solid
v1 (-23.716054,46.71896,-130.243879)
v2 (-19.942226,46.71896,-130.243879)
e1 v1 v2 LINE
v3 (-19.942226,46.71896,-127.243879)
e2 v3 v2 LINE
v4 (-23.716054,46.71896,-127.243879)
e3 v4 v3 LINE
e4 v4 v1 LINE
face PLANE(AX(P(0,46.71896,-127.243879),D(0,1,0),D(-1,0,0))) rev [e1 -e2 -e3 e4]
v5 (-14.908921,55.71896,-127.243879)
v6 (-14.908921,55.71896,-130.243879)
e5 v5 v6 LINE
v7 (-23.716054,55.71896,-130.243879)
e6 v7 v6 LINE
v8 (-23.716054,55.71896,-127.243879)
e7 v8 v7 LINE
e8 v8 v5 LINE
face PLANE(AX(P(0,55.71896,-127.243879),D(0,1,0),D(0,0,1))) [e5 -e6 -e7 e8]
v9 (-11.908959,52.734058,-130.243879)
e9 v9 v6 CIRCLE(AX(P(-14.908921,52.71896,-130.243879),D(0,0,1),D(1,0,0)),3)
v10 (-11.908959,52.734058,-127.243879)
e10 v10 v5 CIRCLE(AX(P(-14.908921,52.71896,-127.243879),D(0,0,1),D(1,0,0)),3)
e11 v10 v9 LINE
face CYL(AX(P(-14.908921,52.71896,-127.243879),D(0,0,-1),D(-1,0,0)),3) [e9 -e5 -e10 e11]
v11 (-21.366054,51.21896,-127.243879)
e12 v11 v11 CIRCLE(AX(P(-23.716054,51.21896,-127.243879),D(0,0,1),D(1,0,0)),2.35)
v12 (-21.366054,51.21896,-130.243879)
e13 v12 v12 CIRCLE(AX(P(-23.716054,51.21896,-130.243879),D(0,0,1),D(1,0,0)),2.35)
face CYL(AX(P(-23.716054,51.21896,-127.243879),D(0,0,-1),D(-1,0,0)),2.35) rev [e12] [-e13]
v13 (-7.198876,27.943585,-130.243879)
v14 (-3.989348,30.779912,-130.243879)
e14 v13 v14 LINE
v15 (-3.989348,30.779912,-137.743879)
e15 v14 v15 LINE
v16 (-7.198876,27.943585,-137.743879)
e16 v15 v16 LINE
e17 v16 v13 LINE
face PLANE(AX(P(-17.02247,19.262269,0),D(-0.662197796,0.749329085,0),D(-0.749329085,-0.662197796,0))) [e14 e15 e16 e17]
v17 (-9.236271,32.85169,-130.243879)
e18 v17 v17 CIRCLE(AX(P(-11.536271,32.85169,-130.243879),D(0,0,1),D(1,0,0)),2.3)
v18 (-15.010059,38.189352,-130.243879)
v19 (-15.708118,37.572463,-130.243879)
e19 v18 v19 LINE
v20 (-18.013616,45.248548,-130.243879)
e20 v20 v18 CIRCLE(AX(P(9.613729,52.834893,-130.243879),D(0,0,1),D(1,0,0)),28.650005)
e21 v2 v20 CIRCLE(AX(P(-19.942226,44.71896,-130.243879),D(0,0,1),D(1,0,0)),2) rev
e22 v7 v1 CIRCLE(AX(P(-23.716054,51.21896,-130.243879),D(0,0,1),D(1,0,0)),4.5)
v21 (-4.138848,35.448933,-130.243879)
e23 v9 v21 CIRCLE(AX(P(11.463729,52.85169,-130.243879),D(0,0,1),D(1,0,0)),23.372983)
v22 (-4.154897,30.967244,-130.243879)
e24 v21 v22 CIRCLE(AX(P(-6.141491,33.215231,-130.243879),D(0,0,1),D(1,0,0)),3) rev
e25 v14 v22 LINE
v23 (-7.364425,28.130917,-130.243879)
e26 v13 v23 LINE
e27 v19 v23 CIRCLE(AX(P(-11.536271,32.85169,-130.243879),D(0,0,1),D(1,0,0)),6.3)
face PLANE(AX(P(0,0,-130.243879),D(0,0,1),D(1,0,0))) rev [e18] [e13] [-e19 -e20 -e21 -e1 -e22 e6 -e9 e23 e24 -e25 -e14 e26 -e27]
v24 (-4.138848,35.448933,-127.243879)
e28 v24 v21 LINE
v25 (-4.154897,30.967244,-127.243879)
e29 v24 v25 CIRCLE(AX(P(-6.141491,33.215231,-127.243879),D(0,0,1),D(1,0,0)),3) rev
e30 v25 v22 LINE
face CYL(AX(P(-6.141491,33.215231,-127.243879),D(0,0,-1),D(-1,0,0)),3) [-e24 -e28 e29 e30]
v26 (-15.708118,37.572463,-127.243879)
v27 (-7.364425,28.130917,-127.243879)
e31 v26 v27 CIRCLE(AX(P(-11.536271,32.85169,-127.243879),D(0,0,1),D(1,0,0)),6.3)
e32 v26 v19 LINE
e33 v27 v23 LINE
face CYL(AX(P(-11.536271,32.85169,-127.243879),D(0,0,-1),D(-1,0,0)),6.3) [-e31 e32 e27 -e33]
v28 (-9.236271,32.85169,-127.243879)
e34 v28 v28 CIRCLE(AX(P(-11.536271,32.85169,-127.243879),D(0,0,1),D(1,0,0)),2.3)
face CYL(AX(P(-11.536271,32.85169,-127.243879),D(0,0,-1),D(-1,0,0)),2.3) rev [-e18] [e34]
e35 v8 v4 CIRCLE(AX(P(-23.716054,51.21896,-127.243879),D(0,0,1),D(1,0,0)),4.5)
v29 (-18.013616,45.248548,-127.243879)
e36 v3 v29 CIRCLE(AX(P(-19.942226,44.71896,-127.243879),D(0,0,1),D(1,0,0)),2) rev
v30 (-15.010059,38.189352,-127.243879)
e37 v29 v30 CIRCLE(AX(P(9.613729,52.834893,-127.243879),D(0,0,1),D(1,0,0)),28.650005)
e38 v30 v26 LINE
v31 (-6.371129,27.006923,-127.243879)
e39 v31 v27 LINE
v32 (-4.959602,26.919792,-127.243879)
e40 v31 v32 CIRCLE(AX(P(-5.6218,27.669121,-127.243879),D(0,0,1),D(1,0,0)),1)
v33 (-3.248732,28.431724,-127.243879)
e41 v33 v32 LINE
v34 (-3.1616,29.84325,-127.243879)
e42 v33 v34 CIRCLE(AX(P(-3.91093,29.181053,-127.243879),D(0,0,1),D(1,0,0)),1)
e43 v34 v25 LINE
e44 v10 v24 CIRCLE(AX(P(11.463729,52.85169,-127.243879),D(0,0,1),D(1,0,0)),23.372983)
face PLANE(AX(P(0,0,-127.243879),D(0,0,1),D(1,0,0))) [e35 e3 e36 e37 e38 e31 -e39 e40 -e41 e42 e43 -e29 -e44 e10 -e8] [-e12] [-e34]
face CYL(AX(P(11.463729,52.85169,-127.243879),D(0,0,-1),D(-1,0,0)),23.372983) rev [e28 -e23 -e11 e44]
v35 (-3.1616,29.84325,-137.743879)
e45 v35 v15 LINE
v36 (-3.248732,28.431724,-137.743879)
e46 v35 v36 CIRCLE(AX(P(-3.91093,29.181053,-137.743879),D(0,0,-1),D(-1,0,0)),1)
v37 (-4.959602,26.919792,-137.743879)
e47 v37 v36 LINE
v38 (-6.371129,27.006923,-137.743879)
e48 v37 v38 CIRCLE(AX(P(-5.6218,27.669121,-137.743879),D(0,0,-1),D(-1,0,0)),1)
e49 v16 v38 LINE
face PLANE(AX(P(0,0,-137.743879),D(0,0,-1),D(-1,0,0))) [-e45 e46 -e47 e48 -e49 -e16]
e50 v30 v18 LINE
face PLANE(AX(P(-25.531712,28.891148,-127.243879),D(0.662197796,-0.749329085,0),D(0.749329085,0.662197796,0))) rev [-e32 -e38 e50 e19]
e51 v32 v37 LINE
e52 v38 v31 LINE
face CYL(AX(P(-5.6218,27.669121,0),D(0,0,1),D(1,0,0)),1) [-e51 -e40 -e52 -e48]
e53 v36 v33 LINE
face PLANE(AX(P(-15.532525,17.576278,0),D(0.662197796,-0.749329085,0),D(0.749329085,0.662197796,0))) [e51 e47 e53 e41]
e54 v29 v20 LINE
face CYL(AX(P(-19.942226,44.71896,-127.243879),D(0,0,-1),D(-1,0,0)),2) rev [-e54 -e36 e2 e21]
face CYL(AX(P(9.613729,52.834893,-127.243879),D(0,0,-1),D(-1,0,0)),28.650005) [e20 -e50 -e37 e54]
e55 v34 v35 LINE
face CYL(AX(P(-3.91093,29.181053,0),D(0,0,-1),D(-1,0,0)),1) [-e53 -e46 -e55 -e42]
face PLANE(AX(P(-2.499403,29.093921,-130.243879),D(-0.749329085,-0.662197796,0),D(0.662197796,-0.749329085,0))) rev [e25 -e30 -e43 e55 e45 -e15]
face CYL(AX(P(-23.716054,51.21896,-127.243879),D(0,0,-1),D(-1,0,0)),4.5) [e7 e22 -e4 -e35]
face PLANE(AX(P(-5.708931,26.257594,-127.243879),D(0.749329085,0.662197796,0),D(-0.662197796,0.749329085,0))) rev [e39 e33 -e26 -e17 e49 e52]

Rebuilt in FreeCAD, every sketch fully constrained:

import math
import FreeCAD as App
import Part
import Sketcher
from FreeCAD import Vector
Q = App.Units.Quantity


def edges_at(feature, points):
    """Names of the edges that pass closest to the given points."""
    edges = feature.Shape.Edges
    near = lambda p: min(range(len(edges)), key=lambda i: edges[i].distToShape(Part.Vertex(*p))[0])
    return sorted({f"Edge{near(p) + 1}" for p in points})


def add_polygon(sketch, points):
    """Adds a closed chain of lines whose ends are joined by coincident constraints."""
    first, n = sketch.GeometryCount, len(points)
    for a, b in zip(points, points[1:] + points[:1]):
        sketch.addGeometry(Part.LineSegment(App.Vector(*a, 0), App.Vector(*b, 0)), False)
    for i in range(n):
        sketch.addConstraint(Sketcher.Constraint("Coincident", first + i, 2, first + (i + 1) % n, 1))

doc = App.newDocument("Part")
params = doc.addObject("Spreadsheet::Sheet", "Params")
for row, (alias, value) in enumerate([
    ("sketch1_radius", "3 mm"),
    ("sketch1_radius2", "2 mm"),
    ("sketch1_diameter", "4.6 mm"),
    ("sketch1_diameter2", "4.7 mm"),
    ("sketch1_radius3", "6.3 mm"),
    ("pad1_length", "3 mm"),
    ("sketch2_height", "3 mm"),
    ("pad2_length", "2.5 mm"),
    ("sketch3_length", "2.5 mm"),
    ("pad3_length", "10.5 mm"),
    ("fillet_radius", "1 mm"),
    ("sketch4_height", "7.5 mm"),
    ("pocket1_length", "0.25 mm"),
], start=1):
    params.set(f"A{row}", alias)
    params.set(f"B{row}", "=" + value)
    params.setAlias(f"B{row}", alias)

body = doc.addObject("PartDesign::Body", "Body")

# Sketch on XY plane
sketch1 = doc.addObject("Sketcher::SketchObject", "Sketch")
body.addObject(sketch1)
sketch1.AttachmentSupport = (doc.XY_Plane, [""])
sketch1.MapMode = "FlatFace"
sketch1.AttachmentOffset = App.Placement(Vector(0, 0, -130.243879), App.Rotation())
sketch1.addGeometry([
    Part.LineSegment(Vector(-15, 38.2, 0), Vector(-15.7, 37.6, 0)),  # 0
    Part.ArcOfCircle(Part.Circle(Vector(-11.5, 32.9, 0), Vector(0, 0, 1), 6.3), math.radians(131), math.radians(311)),  # 1
    Part.LineSegment(Vector(-7.4, 28.1, 0), Vector(-4.2, 31, 0)),  # 2
    Part.ArcOfCircle(Part.Circle(Vector(-6.1, 33.2, 0), Vector(0, 0, 1), 3), math.radians(-49), math.radians(48)),  # 3
    Part.ArcOfCircle(Part.Circle(Vector(11.5, 52.9, 0), Vector(0, 0, 1), 23.4), math.radians(-180), math.radians(-132)),  # 4
    Part.ArcOfCircle(Part.Circle(Vector(-14.9, 52.7, 0), Vector(0, 0, 1), 3), math.radians(0), math.radians(90)),  # 5
    Part.LineSegment(Vector(-14.9, 55.7, 0), Vector(-23.7, 55.7, 0)),  # 6
    Part.ArcOfCircle(Part.Circle(Vector(-23.7, 51.2, 0), Vector(0, 0, 1), 4.5), math.radians(90), math.radians(270)),  # 7
    Part.LineSegment(Vector(-23.7, 46.7, 0), Vector(-19.9, 46.7, 0)),  # 8
    Part.ArcOfCircle(Part.Circle(Vector(-19.9, 44.7, 0), Vector(0, 0, 1), 2), math.radians(15), math.radians(90)),  # 9
    Part.ArcOfCircle(Part.Circle(Vector(9.6, 52.8, 0), Vector(0, 0, 1), 28.7), math.radians(-164.65), math.radians(-149.26)),  # 10
    Part.Circle(Vector(-11.5, 32.9, 0), Vector(0, 0, 1), 2.3),  # 11
    Part.Circle(Vector(-23.7, 51.2, 0), Vector(0, 0, 1), 2.4),  # 12
], False)
sketch1.addConstraint([
    Sketcher.Constraint("Tangent", 0, 2, 1, 1),
    Sketcher.Constraint("Tangent", 1, 2, 2, 1),
    Sketcher.Constraint("Tangent", 2, 2, 3, 1),
    Sketcher.Constraint("Tangent", 3, 2, 4, 2),
    Sketcher.Constraint("Tangent", 4, 1, 5, 1),
    Sketcher.Constraint("Tangent", 5, 2, 6, 1),
    Sketcher.Constraint("Tangent", 6, 2, 7, 1),
    Sketcher.Constraint("Tangent", 7, 2, 8, 1),
    Sketcher.Constraint("Tangent", 8, 2, 9, 2),
    Sketcher.Constraint("Tangent", 9, 1, 10, 1),
    Sketcher.Constraint("Coincident", 10, 2, 0, 1),
    Sketcher.Constraint("Horizontal", 6),
    Sketcher.Constraint("Horizontal", 8),
    Sketcher.Constraint("Coincident", 11, 3, 1, 3),
    Sketcher.Constraint("Coincident", 12, 3, 7, 3),
    Sketcher.Constraint("Equal", 3, 5),
    Sketcher.Constraint("Parallel", 0, 2),
    Sketcher.Constraint("Radius", 3, Q("3 mm")),
    Sketcher.Constraint("Radius", 9, Q("2 mm")),
    Sketcher.Constraint("Diameter", 11, Q("4.6 mm")),
    Sketcher.Constraint("Diameter", 12, Q("4.7 mm")),
    Sketcher.Constraint("Radius", 1, Q("6.3 mm")),
    Sketcher.Constraint("Radius", 7, Q("4.5 mm")),
    Sketcher.Constraint("DistanceX", 1, 3, 4, 3, Q("23 mm")),
    Sketcher.Constraint("DistanceY", 1, 3, 4, 3, Q("20 mm")),
    Sketcher.Constraint("DistanceX", 10, 3, 4, 3, Q("1.85 mm")),
    Sketcher.Constraint("Radius", 4, Q("23.372983 mm")),
    Sketcher.Constraint("Radius", 10, Q("28.650005 mm")),
    Sketcher.Constraint("DistanceX", 9, 3, 1, 2, Q("12.577801 mm")),
    Sketcher.Constraint("DistanceY", 3, 3, 3, 2, Q("2.233702 mm")),
    Sketcher.Constraint("DistanceY", 5, 3, 4, 1, Q("0.015098 mm")),
    Sketcher.Constraint("DistanceX", 6, 2, 6, 1, Q("8.807133 mm")),
    Sketcher.Constraint("DistanceX", 1, 3, -1, 1, Q("11.536271 mm")),
    Sketcher.Constraint("DistanceY", -1, 1, 1, 3, Q("32.85169 mm")),
])
sketch1.setExpression("Constraints[17]", "Params.sketch1_radius")
sketch1.setExpression("Constraints[18]", "Params.sketch1_radius2")
sketch1.setExpression("Constraints[19]", "Params.sketch1_diameter")
sketch1.setExpression("Constraints[20]", "Params.sketch1_diameter2")
sketch1.setExpression("Constraints[21]", "Params.sketch1_radius3")
pad1 = doc.addObject("PartDesign::Pad", "Pad")
body.addObject(pad1)
pad1.Profile = sketch1
pad1.setExpression("Length", "Params.pad1_length")

# Sketch on an angled plane
sketch2 = doc.addObject("Sketcher::SketchObject", "Sketch001")
body.addObject(sketch2)
sketch2.Placement = App.Placement(Vector(-17.18802, 19.449601, 0), App.Rotation(Vector(0.749329085, 0.662197796, 0), Vector(0, 0, 0.999999999), Vector(0.662197796, -0.749329085, 0), "ZXY"))
add_polygon(sketch2, [(13.1, -127.2), (13.1, -130.2), (17.4, -130.2), (17.4, -127.2)])  # lines 0-3
sketch2.addConstraint([
    Sketcher.Constraint("Vertical", 0),
    Sketcher.Constraint("Horizontal", 1),
    Sketcher.Constraint("Vertical", 2),
    Sketcher.Constraint("Horizontal", 3),
    Sketcher.Constraint("DistanceY", 0, 2, 0, 1, Q("3 mm")),
    Sketcher.Constraint("DistanceX", 1, 1, 1, 2, Q("4.283202 mm")),
    Sketcher.Constraint("DistanceY", 0, 2, -1, 1, Q("130.243879 mm")),
    Sketcher.Constraint("DistanceX", -1, 1, 0, 2, Q("13.109853 mm")),
])
sketch2.setExpression("Constraints[8]", "Params.sketch2_height")
pad2 = doc.addObject("PartDesign::Pad", "Pad001")
body.addObject(pad2)
pad2.Profile = sketch2
pad2.setExpression("Length", "Params.pad2_length")

# Sketch on XY plane
sketch3 = doc.addObject("Sketcher::SketchObject", "Sketch002")
body.addObject(sketch3)
sketch3.AttachmentSupport = (doc.XY_Plane, [""])
sketch3.MapMode = "FlatFace"
sketch3.AttachmentOffset = App.Placement(Vector(0, 0, -127.243879), App.Rotation())
add_polygon(sketch3, [(-4.2, 31), (-7.4, 28.1), (-5.7, 26.3), (-2.5, 29.1)])  # lines 0-3
sketch3.addConstraint([
    Sketcher.Constraint("Perpendicular", 0, 1),
    Sketcher.Constraint("Perpendicular", 1, 2),
    Sketcher.Constraint("Perpendicular", 2, 3),
    Sketcher.Constraint("Distance", 1, Q("2.5 mm")),
    Sketcher.Constraint("DistanceX", 1, 2, -1, 1, Q("5.708931 mm")),
    Sketcher.Constraint("DistanceY", -1, 1, 2, 2, Q("29.093921 mm")),
    Sketcher.Constraint("DistanceX", 1, 2, 2, 2, Q("3.209528 mm")),
    Sketcher.Constraint("DistanceY", 1, 2, 3, 2, Q("4.70965 mm")),
])
sketch3.setExpression("Constraints[7]", "Params.sketch3_length")
pad3 = doc.addObject("PartDesign::Pad", "Pad002")
body.addObject(pad3)
pad3.Profile = sketch3
pad3.setExpression("Length", "Params.pad3_length")
pad3.Reversed = True
doc.recompute()

fillet = doc.addObject("PartDesign::Fillet", "Fillet")
body.addObject(fillet)
fillet.Base = (pad3, edges_at(pad3, [(-5.709, 26.258, -133.994), (-2.499, 29.094, -133.994)]))
fillet.setExpression("Radius", "Params.fillet_radius")

# Sketch on an angled plane
sketch4 = doc.addObject("Sketcher::SketchObject", "Sketch003")
body.addObject(sketch4)
sketch4.Placement = App.Placement(Vector(-17.18802, 19.449601, 0), App.Rotation(Vector(0.749329085, 0.662197796, 0), Vector(0, 0, -0.999999999), Vector(-0.662197796, 0.749329085, 0), "ZXY"))
add_polygon(sketch4, [(13.1, 137.7), (13.1, 130.2), (17.4, 130.2), (17.4, 137.7)])  # lines 0-3
sketch4.addConstraint([
    Sketcher.Constraint("Vertical", 0),
    Sketcher.Constraint("Horizontal", 1),
    Sketcher.Constraint("Vertical", 2),
    Sketcher.Constraint("Horizontal", 3),
    Sketcher.Constraint("DistanceY", 0, 2, 0, 1, Q("7.5 mm")),
    Sketcher.Constraint("DistanceX", 1, 1, 1, 2, Q("4.283202 mm")),
    Sketcher.Constraint("DistanceY", -1, 1, 0, 2, Q("130.243879 mm")),
    Sketcher.Constraint("DistanceX", -1, 1, 0, 2, Q("13.109853 mm")),
])
sketch4.setExpression("Constraints[8]", "Params.sketch4_height")
pocket1 = doc.addObject("PartDesign::Pocket", "Pocket")
body.addObject(pocket1)
pocket1.Profile = sketch4
pocket1.setExpression("Length", "Params.pocket1_length")

doc.recompute()
